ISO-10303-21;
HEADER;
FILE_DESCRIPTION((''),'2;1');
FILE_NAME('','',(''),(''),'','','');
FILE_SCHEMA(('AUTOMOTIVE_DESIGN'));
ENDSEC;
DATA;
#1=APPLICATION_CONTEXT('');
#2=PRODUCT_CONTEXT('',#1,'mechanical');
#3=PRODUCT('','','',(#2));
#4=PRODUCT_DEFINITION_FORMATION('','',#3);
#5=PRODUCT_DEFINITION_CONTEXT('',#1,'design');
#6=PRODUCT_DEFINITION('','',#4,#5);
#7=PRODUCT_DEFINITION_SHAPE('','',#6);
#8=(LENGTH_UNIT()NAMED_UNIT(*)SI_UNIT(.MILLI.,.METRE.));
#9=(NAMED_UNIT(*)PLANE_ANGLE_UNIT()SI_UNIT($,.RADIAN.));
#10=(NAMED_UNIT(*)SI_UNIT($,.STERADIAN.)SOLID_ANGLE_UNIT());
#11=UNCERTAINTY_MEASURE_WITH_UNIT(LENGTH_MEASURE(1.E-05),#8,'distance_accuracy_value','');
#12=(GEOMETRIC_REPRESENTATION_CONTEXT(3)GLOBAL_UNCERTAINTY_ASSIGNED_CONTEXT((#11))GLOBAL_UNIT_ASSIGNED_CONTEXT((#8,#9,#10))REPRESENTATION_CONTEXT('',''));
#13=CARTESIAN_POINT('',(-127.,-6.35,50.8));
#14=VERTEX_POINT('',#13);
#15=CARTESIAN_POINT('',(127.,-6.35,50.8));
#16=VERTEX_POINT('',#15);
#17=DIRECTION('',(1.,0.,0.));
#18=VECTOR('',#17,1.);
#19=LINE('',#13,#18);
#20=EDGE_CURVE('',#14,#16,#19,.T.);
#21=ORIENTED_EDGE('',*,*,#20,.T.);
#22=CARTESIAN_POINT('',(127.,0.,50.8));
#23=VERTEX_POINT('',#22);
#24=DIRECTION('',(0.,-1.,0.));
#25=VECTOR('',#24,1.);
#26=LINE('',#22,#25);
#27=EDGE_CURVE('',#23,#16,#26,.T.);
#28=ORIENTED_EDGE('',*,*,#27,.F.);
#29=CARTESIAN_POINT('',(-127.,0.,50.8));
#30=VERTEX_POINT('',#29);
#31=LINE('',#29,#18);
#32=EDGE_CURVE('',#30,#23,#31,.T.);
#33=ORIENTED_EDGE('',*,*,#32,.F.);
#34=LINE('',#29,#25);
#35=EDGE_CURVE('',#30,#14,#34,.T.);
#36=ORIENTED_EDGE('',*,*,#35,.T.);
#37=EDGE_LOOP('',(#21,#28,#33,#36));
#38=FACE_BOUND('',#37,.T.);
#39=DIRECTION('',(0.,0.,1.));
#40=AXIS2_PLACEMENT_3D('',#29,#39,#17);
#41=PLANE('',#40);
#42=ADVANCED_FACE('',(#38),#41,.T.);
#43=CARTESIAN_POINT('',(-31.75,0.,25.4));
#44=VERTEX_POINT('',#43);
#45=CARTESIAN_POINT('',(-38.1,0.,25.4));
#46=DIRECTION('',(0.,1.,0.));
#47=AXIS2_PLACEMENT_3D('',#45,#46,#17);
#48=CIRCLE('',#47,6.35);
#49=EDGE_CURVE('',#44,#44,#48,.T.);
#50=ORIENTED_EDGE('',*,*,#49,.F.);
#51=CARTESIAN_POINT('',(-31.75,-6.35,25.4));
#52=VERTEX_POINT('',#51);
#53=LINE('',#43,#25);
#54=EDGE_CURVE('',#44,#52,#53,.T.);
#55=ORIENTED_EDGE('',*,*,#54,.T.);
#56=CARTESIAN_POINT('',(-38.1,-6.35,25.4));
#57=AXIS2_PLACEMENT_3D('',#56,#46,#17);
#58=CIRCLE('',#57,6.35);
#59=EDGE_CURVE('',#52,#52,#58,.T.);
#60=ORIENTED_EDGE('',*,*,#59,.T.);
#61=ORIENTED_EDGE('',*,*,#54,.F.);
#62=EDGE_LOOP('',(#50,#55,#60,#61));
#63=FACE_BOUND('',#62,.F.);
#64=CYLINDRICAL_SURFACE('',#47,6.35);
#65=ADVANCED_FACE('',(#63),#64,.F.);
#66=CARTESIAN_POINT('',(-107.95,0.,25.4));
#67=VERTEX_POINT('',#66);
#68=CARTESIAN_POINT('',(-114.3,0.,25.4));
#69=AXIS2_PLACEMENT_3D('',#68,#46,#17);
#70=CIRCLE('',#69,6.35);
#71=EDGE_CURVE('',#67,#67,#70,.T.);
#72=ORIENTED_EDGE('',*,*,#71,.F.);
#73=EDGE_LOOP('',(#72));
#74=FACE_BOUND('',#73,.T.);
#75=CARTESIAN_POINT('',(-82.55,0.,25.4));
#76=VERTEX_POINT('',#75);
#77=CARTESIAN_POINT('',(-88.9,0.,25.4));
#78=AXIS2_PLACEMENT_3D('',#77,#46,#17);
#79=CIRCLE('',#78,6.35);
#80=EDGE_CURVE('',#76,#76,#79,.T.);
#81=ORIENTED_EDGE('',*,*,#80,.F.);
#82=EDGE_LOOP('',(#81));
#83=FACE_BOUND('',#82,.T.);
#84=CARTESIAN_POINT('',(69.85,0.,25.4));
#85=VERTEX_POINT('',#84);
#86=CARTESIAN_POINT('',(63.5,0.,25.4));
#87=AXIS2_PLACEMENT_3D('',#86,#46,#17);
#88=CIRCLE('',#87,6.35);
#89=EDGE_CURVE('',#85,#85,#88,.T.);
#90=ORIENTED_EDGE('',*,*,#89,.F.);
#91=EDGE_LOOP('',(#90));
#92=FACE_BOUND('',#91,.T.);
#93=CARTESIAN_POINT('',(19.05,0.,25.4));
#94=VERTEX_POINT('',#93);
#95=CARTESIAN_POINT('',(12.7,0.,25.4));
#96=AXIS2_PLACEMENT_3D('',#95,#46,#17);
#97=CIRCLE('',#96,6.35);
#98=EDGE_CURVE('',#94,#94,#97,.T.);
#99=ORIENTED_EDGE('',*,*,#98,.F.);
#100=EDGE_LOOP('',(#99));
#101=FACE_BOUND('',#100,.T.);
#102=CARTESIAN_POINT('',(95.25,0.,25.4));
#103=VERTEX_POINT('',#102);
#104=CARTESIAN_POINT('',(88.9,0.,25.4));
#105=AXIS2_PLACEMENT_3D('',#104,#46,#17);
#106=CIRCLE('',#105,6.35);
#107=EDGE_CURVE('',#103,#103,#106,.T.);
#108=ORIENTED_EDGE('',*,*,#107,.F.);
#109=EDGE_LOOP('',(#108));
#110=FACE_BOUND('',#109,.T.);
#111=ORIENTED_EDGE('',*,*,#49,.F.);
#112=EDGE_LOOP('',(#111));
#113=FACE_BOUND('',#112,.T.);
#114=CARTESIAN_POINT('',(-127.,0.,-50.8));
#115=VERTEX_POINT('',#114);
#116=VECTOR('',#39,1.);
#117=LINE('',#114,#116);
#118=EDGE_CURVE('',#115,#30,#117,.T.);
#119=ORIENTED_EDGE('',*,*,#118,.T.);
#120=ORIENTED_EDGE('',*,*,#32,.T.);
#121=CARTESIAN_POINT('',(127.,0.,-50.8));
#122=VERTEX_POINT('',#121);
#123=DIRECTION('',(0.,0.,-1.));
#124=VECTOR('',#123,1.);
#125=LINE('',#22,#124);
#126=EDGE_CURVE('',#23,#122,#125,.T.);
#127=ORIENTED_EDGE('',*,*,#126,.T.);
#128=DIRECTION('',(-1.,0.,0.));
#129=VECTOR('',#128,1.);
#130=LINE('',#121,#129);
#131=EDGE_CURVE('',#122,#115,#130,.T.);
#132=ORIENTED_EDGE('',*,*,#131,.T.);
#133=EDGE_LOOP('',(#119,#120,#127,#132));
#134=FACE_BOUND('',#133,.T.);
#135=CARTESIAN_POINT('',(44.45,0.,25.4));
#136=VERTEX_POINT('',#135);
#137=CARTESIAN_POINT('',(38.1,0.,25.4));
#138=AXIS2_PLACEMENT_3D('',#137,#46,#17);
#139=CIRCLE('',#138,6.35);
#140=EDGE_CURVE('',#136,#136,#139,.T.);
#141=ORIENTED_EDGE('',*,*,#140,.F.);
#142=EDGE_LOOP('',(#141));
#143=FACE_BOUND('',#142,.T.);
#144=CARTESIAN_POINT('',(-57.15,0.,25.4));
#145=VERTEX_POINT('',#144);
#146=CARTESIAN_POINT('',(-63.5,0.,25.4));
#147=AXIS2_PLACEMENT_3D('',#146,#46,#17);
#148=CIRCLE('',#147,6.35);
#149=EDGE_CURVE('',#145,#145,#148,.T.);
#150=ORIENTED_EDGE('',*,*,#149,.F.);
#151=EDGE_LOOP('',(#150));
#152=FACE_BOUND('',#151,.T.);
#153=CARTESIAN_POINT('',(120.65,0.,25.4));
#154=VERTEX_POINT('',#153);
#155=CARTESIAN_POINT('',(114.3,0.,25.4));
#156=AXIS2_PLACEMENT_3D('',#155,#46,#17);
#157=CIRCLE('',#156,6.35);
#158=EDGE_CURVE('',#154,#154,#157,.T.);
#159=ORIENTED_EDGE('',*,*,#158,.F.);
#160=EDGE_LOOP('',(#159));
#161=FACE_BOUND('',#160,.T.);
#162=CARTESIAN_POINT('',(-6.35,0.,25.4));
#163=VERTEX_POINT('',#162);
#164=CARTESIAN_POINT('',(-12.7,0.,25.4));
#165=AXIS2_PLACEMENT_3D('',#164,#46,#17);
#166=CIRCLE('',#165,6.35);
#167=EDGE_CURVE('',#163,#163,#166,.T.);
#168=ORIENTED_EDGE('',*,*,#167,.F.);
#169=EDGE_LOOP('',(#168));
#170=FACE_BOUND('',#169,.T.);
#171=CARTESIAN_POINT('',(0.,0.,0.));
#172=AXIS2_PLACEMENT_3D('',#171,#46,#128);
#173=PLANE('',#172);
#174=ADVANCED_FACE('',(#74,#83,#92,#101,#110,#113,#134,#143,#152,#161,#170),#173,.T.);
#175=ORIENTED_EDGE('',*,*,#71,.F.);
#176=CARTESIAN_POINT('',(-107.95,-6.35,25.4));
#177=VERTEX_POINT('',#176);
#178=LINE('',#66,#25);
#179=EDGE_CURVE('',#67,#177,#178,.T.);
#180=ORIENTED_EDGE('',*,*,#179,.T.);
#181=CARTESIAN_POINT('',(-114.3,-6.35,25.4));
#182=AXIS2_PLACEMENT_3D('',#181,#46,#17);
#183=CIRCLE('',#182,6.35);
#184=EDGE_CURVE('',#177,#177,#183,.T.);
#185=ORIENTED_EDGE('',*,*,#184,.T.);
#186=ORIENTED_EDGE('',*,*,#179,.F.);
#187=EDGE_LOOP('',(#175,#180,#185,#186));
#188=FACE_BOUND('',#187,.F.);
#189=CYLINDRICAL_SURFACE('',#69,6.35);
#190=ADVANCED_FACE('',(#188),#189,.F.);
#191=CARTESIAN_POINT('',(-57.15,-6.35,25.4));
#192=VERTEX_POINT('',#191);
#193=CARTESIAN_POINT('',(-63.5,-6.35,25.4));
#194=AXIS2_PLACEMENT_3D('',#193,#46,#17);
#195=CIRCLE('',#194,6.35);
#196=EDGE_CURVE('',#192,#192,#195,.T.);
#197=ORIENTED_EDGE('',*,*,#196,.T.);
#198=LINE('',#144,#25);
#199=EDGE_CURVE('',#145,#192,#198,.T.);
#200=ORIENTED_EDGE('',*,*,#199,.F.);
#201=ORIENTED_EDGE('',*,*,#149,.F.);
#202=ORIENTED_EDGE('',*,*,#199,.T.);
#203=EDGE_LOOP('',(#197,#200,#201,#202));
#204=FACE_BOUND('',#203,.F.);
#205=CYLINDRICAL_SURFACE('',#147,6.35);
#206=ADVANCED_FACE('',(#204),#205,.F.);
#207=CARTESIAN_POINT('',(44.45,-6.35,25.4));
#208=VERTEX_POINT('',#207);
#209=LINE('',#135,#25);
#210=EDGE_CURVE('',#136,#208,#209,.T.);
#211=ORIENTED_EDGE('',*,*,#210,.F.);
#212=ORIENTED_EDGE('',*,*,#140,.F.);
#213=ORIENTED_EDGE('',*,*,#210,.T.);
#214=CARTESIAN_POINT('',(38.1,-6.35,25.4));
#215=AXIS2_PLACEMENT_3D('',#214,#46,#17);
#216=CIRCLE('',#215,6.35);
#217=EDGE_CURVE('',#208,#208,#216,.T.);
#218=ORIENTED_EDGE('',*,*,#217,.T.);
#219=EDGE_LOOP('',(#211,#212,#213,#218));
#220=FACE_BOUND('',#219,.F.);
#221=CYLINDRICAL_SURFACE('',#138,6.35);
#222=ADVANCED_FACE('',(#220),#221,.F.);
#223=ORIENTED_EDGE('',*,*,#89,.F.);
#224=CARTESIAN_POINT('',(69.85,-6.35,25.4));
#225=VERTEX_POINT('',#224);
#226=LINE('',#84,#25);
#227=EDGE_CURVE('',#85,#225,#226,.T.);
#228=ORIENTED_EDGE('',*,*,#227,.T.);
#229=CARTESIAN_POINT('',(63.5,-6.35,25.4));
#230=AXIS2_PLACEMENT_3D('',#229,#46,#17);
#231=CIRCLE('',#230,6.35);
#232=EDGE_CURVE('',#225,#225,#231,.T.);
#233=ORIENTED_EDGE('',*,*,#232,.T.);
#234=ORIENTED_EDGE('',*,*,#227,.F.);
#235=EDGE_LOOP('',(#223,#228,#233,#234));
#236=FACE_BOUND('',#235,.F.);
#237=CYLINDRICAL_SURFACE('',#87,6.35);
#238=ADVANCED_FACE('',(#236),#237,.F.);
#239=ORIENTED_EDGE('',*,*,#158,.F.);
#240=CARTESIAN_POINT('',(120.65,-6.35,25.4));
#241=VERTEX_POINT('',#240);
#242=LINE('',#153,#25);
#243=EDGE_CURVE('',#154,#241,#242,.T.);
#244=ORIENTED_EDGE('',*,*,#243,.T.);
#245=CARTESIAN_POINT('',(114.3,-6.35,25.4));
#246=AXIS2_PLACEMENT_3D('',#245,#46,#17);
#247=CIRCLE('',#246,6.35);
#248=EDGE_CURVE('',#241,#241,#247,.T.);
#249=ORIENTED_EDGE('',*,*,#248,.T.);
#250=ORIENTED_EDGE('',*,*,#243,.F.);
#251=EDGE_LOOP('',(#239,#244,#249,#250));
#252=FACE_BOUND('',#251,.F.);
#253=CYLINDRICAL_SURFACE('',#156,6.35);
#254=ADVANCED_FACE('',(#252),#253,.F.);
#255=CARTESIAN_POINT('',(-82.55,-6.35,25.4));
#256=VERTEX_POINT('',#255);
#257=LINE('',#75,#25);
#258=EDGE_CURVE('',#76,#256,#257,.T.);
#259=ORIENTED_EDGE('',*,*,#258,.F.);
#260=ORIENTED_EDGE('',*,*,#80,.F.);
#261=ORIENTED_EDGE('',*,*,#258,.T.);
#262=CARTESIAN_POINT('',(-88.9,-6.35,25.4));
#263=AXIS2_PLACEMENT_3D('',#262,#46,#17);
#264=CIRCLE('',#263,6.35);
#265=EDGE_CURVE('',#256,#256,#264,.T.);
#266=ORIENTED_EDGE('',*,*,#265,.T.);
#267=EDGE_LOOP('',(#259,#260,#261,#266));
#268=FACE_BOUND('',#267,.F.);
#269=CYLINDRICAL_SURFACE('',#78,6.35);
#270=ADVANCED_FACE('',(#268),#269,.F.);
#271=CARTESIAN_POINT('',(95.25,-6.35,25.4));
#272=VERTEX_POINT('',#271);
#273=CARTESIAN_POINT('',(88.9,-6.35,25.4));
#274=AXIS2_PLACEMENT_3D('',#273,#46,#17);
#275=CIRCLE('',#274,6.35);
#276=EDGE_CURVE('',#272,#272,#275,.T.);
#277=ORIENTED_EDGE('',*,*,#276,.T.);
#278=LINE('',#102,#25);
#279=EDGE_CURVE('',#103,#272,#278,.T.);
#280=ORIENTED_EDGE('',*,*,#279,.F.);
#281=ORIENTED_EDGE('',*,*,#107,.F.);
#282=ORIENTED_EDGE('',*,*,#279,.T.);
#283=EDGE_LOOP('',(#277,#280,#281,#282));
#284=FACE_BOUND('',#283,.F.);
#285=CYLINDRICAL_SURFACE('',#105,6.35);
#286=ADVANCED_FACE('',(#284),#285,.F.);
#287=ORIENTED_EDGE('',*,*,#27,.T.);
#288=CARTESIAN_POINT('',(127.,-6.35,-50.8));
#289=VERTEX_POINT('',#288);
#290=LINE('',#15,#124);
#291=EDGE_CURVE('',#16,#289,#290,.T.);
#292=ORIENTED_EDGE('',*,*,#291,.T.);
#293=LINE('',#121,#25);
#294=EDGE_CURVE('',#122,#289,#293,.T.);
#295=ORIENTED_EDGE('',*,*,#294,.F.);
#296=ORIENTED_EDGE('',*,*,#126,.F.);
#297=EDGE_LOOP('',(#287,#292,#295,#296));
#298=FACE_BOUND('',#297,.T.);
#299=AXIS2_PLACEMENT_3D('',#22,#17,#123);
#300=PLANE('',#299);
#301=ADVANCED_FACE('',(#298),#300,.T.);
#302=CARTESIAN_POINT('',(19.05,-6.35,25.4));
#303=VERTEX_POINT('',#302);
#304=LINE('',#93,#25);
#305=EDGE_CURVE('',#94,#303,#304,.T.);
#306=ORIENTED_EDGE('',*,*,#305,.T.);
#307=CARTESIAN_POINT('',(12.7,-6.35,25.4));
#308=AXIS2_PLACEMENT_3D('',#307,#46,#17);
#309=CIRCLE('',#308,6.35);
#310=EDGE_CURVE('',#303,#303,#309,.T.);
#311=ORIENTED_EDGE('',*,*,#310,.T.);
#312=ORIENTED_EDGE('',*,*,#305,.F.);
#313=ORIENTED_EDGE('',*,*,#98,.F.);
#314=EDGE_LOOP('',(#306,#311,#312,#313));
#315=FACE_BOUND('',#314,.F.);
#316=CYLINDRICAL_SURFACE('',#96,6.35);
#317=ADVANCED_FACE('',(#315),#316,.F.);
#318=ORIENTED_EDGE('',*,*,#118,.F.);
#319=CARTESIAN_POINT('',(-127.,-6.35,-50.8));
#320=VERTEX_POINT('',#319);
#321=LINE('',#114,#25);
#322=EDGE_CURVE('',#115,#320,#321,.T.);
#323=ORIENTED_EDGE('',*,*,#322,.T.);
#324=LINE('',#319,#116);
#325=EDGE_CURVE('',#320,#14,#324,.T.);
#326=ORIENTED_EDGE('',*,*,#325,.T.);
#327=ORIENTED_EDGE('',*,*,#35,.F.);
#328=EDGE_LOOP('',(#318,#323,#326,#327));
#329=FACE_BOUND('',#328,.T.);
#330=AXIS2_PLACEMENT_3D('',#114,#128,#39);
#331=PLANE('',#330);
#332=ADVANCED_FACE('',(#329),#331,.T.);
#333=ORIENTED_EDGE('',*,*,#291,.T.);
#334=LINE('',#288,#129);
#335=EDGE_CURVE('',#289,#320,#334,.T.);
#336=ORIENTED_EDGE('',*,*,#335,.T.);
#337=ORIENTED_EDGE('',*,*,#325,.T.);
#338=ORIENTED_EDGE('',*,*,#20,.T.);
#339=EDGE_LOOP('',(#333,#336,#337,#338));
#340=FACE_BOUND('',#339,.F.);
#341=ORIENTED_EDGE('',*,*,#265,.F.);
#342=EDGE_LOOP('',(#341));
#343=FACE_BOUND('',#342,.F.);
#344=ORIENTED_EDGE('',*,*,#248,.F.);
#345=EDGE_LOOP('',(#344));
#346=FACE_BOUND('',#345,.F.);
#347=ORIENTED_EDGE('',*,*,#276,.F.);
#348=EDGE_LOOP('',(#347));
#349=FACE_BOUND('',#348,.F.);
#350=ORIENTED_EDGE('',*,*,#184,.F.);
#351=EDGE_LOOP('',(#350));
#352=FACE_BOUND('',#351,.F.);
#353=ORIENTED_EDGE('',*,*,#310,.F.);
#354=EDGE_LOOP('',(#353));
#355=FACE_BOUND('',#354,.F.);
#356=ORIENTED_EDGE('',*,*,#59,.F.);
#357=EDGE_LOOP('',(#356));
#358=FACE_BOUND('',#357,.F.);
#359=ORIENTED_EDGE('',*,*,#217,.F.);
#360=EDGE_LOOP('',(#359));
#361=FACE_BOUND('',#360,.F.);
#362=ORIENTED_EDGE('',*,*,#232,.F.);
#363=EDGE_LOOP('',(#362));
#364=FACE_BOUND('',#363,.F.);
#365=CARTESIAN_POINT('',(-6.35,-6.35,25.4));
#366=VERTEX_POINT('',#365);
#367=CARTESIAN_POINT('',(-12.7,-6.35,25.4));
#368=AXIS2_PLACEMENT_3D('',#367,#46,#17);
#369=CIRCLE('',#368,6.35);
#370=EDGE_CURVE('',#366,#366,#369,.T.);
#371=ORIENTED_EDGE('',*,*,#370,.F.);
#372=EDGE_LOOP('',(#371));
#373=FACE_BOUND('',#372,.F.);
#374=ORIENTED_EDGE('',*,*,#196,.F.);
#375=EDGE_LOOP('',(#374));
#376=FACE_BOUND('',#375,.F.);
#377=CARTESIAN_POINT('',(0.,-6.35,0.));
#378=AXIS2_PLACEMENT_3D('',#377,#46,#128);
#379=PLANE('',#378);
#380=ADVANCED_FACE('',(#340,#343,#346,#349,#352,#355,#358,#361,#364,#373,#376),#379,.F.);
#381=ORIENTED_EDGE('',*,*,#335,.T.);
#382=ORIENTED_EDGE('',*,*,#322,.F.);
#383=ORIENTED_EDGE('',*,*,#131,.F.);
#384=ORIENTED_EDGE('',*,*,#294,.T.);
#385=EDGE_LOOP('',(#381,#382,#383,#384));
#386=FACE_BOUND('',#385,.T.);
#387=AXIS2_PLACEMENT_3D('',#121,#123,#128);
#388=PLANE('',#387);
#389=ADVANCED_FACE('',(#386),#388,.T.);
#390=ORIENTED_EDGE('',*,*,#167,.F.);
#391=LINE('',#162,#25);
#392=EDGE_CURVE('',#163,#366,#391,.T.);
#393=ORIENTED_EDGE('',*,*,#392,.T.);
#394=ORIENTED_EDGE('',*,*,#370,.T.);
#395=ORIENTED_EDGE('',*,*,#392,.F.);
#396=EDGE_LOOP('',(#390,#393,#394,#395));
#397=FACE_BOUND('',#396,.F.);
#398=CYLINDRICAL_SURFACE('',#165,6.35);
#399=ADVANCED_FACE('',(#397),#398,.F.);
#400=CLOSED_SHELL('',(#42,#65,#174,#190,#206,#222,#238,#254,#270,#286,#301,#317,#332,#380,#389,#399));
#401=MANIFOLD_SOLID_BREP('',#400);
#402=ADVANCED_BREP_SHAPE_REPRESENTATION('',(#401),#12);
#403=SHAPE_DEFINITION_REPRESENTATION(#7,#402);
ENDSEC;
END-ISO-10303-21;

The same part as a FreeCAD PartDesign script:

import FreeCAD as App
import Part
import Sketcher

V = App.Vector
Q = App.Units.Quantity


def add_polygon(sketch, points):
    """Adds a closed chain of lines whose ends are joined by coincident constraints."""
    first, n = sketch.GeometryCount, len(points)
    for a, b in zip(points, points[1:] + points[:1]):
        sketch.addGeometry(Part.LineSegment(App.Vector(*a, 0), App.Vector(*b, 0)), False)
    for i in range(n):
        sketch.addConstraint(Sketcher.Constraint("Coincident", first + i, 2, first + (i + 1) % n, 1))

doc = App.newDocument("Part")
params = doc.addObject("Spreadsheet::Sheet", "Params")
for row, (alias, value) in enumerate([
    ("sketch1_width", "10 in"),
    ("sketch1_height", "4 in"),
    ("pad1_length", "0.25 in"),
    ("sketch2_diameter", "0.5 in"),
], start=1):
    params.set(f"A{row}", alias)
    params.set(f"B{row}", "=" + value)
    params.setAlias(f"B{row}", alias)

body = doc.addObject("PartDesign::Body", "Body")

# Sketch on XZ plane
sketch1 = doc.addObject("Sketcher::SketchObject", "Sketch")
body.addObject(sketch1)
sketch1.AttachmentSupport = (doc.XZ_Plane, [""])
sketch1.MapMode = "FlatFace"
add_polygon(sketch1, [(-127, -51), (-127, 51), (127, 51), (127, -51)])  # lines 0-3
sketch1.addConstraint([
    Sketcher.Constraint("Vertical", 0),
    Sketcher.Constraint("Horizontal", 1),
    Sketcher.Constraint("Vertical", 2),
    Sketcher.Constraint("Horizontal", 3),
    Sketcher.Constraint("Symmetric", 0, 2, 2, 2, -1, 1),
    Sketcher.Constraint("DistanceX", 1, 1, 1, 2, Q("10 in")),
    Sketcher.Constraint("DistanceY", 0, 1, 0, 2, Q("4 in")),
])
sketch1.setExpression("Constraints[9]", "Params.sketch1_width")
sketch1.setExpression("Constraints[10]", "Params.sketch1_height")
pad1 = doc.addObject("PartDesign::Pad", "Pad")
body.addObject(pad1)
pad1.Profile = sketch1
pad1.setExpression("Length", "Params.pad1_length")

# Sketch on XZ plane
sketch2 = doc.addObject("Sketcher::SketchObject", "Sketch001")
body.addObject(sketch2)
sketch2.AttachmentSupport = (doc.XZ_Plane, [""])
sketch2.MapMode = "FlatFace"
sketch2.addGeometry([
    Part.Circle(V(-114, 25, 0), V(0, 0, 1), 6),  # 0
    Part.Circle(V(-89, 25, 0), V(0, 0, 1), 6),  # 1
    Part.Circle(V(-64, 25, 0), V(0, 0, 1), 6),  # 2
    Part.Circle(V(-38, 25, 0), V(0, 0, 1), 6),  # 3
    Part.Circle(V(-13, 25, 0), V(0, 0, 1), 6),  # 4
    Part.Circle(V(13, 25, 0), V(0, 0, 1), 6),  # 5
    Part.Circle(V(38, 25, 0), V(0, 0, 1), 6),  # 6
    Part.Circle(V(64, 25, 0), V(0, 0, 1), 6),  # 7
    Part.Circle(V(89, 25, 0), V(0, 0, 1), 6),  # 8
    Part.Circle(V(114, 25, 0), V(0, 0, 1), 6),  # 9
], False)
sketch2.addConstraint([
    Sketcher.Constraint("Equal", 0, 1),
    Sketcher.Constraint("Equal", 1, 2),
    Sketcher.Constraint("Equal", 2, 3),
    Sketcher.Constraint("Equal", 3, 4),
    Sketcher.Constraint("Equal", 4, 5),
    Sketcher.Constraint("Equal", 5, 6),
    Sketcher.Constraint("Equal", 6, 7),
    Sketcher.Constraint("Equal", 7, 8),
    Sketcher.Constraint("Equal", 8, 9),
    Sketcher.Constraint("Symmetric", 4, 3, 5, 3, -2),
    Sketcher.Constraint("Symmetric", 3, 3, 6, 3, -2),
    Sketcher.Constraint("Symmetric", 2, 3, 7, 3, -2),
    Sketcher.Constraint("Symmetric", 1, 3, 8, 3, -2),
    Sketcher.Constraint("Symmetric", 0, 3, 9, 3, -2),
    Sketcher.Constraint("Horizontal", 0, 3, 1, 3),
    Sketcher.Constraint("Horizontal", 1, 3, 2, 3),
    Sketcher.Constraint("Horizontal", 2, 3, 3, 3),
    Sketcher.Constraint("Horizontal", 3, 3, 4, 3),
    Sketcher.Constraint("Diameter", 0, Q("0.5 in")),
    Sketcher.Constraint("DistanceY", -1, 1, 0, 3, Q("1 in")),
    Sketcher.Constraint("DistanceX", 0, 3, 1, 3, Q("1 in")),
    Sketcher.Constraint("DistanceX", 1, 3, 2, 3, Q("1 in")),
    Sketcher.Constraint("DistanceX", 2, 3, 3, 3, Q("1 in")),
    Sketcher.Constraint("DistanceX", 3, 3, 4, 3, Q("1 in")),
    Sketcher.Constraint("DistanceX", 4, 3, 5, 3, Q("1 in")),
])
sketch2.setExpression("Constraints[18]", "Params.sketch2_diameter")
pocket1 = doc.addObject("PartDesign::Pocket", "Pocket")
body.addObject(pocket1)
pocket1.Profile = sketch2
pocket1.Type = "ThroughAll"
pocket1.Reversed = True

doc.recompute()
